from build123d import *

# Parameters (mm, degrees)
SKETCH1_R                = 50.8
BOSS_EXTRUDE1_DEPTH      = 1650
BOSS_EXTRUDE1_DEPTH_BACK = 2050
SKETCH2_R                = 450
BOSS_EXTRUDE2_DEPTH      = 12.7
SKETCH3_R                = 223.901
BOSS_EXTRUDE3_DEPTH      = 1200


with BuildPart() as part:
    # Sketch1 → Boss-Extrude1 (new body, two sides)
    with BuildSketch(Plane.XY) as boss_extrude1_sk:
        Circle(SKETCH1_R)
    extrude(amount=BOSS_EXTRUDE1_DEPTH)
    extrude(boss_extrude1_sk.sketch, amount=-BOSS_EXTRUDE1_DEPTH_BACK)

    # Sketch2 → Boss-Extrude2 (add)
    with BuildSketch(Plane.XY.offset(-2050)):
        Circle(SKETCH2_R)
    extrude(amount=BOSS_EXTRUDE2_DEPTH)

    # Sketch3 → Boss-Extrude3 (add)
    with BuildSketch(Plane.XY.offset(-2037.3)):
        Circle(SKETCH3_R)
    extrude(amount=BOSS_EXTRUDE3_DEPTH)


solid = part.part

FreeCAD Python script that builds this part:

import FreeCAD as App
import Part
import Sketcher
Q = App.Units.Quantity

doc = App.newDocument("Part")
body = doc.addObject("PartDesign::Body", "Body")

sketch1 = body.newObject("Sketcher::SketchObject", "Sketch")
sketch1.AttachmentSupport = (doc.getObject("XY_Plane"), [""])
sketch1.MapMode = "FlatFace"
sketch1.addGeometry(Part.Circle(App.Vector(0, 0, 0), App.Vector(0, 0, 1), 51), False)
sketch1.addConstraint([
    Sketcher.Constraint("Coincident", 0, 3, -1, 1),
    Sketcher.Constraint("Diameter", 0, Q("101.6 mm")),
])
pad1 = body.newObject("PartDesign::Pad", "Pad")
pad1.Profile = sketch1
pad1.Type = "TwoLengths"
pad1.Length = 1650
pad1.Length2 = 2050

sketch2 = body.newObject("Sketcher::SketchObject", "Sketch001")
sketch2.AttachmentSupport = (doc.getObject("XY_Plane"), [""])
sketch2.MapMode = "FlatFace"
sketch2.AttachmentOffset = App.Placement(App.Vector(0, 0, -2050), App.Rotation())
sketch2.addGeometry(Part.Circle(App.Vector(0, 0, 0), App.Vector(0, 0, 1), 450), False)
sketch2.addConstraint([
    Sketcher.Constraint("Coincident", 0, 3, -1, 1),
    Sketcher.Constraint("Diameter", 0, Q("900 mm")),
])
pad2 = body.newObject("PartDesign::Pad", "Pad001")
pad2.Profile = sketch2
pad2.Length = 12.7

sketch3 = body.newObject("Sketcher::SketchObject", "Sketch002")
sketch3.AttachmentSupport = (doc.getObject("XY_Plane"), [""])
sketch3.MapMode = "FlatFace"
sketch3.AttachmentOffset = App.Placement(App.Vector(0, 0, -2037.3), App.Rotation())
sketch3.addGeometry(Part.Circle(App.Vector(0, 0, 0), App.Vector(0, 0, 1), 224), False)
sketch3.addConstraint([
    Sketcher.Constraint("Coincident", 0, 3, -1, 1),
    Sketcher.Constraint("Diameter", 0, Q("447.802 mm")),
])
pad3 = body.newObject("PartDesign::Pad", "Pad002")
pad3.Profile = sketch3
pad3.Length = 1200

doc.recompute()
